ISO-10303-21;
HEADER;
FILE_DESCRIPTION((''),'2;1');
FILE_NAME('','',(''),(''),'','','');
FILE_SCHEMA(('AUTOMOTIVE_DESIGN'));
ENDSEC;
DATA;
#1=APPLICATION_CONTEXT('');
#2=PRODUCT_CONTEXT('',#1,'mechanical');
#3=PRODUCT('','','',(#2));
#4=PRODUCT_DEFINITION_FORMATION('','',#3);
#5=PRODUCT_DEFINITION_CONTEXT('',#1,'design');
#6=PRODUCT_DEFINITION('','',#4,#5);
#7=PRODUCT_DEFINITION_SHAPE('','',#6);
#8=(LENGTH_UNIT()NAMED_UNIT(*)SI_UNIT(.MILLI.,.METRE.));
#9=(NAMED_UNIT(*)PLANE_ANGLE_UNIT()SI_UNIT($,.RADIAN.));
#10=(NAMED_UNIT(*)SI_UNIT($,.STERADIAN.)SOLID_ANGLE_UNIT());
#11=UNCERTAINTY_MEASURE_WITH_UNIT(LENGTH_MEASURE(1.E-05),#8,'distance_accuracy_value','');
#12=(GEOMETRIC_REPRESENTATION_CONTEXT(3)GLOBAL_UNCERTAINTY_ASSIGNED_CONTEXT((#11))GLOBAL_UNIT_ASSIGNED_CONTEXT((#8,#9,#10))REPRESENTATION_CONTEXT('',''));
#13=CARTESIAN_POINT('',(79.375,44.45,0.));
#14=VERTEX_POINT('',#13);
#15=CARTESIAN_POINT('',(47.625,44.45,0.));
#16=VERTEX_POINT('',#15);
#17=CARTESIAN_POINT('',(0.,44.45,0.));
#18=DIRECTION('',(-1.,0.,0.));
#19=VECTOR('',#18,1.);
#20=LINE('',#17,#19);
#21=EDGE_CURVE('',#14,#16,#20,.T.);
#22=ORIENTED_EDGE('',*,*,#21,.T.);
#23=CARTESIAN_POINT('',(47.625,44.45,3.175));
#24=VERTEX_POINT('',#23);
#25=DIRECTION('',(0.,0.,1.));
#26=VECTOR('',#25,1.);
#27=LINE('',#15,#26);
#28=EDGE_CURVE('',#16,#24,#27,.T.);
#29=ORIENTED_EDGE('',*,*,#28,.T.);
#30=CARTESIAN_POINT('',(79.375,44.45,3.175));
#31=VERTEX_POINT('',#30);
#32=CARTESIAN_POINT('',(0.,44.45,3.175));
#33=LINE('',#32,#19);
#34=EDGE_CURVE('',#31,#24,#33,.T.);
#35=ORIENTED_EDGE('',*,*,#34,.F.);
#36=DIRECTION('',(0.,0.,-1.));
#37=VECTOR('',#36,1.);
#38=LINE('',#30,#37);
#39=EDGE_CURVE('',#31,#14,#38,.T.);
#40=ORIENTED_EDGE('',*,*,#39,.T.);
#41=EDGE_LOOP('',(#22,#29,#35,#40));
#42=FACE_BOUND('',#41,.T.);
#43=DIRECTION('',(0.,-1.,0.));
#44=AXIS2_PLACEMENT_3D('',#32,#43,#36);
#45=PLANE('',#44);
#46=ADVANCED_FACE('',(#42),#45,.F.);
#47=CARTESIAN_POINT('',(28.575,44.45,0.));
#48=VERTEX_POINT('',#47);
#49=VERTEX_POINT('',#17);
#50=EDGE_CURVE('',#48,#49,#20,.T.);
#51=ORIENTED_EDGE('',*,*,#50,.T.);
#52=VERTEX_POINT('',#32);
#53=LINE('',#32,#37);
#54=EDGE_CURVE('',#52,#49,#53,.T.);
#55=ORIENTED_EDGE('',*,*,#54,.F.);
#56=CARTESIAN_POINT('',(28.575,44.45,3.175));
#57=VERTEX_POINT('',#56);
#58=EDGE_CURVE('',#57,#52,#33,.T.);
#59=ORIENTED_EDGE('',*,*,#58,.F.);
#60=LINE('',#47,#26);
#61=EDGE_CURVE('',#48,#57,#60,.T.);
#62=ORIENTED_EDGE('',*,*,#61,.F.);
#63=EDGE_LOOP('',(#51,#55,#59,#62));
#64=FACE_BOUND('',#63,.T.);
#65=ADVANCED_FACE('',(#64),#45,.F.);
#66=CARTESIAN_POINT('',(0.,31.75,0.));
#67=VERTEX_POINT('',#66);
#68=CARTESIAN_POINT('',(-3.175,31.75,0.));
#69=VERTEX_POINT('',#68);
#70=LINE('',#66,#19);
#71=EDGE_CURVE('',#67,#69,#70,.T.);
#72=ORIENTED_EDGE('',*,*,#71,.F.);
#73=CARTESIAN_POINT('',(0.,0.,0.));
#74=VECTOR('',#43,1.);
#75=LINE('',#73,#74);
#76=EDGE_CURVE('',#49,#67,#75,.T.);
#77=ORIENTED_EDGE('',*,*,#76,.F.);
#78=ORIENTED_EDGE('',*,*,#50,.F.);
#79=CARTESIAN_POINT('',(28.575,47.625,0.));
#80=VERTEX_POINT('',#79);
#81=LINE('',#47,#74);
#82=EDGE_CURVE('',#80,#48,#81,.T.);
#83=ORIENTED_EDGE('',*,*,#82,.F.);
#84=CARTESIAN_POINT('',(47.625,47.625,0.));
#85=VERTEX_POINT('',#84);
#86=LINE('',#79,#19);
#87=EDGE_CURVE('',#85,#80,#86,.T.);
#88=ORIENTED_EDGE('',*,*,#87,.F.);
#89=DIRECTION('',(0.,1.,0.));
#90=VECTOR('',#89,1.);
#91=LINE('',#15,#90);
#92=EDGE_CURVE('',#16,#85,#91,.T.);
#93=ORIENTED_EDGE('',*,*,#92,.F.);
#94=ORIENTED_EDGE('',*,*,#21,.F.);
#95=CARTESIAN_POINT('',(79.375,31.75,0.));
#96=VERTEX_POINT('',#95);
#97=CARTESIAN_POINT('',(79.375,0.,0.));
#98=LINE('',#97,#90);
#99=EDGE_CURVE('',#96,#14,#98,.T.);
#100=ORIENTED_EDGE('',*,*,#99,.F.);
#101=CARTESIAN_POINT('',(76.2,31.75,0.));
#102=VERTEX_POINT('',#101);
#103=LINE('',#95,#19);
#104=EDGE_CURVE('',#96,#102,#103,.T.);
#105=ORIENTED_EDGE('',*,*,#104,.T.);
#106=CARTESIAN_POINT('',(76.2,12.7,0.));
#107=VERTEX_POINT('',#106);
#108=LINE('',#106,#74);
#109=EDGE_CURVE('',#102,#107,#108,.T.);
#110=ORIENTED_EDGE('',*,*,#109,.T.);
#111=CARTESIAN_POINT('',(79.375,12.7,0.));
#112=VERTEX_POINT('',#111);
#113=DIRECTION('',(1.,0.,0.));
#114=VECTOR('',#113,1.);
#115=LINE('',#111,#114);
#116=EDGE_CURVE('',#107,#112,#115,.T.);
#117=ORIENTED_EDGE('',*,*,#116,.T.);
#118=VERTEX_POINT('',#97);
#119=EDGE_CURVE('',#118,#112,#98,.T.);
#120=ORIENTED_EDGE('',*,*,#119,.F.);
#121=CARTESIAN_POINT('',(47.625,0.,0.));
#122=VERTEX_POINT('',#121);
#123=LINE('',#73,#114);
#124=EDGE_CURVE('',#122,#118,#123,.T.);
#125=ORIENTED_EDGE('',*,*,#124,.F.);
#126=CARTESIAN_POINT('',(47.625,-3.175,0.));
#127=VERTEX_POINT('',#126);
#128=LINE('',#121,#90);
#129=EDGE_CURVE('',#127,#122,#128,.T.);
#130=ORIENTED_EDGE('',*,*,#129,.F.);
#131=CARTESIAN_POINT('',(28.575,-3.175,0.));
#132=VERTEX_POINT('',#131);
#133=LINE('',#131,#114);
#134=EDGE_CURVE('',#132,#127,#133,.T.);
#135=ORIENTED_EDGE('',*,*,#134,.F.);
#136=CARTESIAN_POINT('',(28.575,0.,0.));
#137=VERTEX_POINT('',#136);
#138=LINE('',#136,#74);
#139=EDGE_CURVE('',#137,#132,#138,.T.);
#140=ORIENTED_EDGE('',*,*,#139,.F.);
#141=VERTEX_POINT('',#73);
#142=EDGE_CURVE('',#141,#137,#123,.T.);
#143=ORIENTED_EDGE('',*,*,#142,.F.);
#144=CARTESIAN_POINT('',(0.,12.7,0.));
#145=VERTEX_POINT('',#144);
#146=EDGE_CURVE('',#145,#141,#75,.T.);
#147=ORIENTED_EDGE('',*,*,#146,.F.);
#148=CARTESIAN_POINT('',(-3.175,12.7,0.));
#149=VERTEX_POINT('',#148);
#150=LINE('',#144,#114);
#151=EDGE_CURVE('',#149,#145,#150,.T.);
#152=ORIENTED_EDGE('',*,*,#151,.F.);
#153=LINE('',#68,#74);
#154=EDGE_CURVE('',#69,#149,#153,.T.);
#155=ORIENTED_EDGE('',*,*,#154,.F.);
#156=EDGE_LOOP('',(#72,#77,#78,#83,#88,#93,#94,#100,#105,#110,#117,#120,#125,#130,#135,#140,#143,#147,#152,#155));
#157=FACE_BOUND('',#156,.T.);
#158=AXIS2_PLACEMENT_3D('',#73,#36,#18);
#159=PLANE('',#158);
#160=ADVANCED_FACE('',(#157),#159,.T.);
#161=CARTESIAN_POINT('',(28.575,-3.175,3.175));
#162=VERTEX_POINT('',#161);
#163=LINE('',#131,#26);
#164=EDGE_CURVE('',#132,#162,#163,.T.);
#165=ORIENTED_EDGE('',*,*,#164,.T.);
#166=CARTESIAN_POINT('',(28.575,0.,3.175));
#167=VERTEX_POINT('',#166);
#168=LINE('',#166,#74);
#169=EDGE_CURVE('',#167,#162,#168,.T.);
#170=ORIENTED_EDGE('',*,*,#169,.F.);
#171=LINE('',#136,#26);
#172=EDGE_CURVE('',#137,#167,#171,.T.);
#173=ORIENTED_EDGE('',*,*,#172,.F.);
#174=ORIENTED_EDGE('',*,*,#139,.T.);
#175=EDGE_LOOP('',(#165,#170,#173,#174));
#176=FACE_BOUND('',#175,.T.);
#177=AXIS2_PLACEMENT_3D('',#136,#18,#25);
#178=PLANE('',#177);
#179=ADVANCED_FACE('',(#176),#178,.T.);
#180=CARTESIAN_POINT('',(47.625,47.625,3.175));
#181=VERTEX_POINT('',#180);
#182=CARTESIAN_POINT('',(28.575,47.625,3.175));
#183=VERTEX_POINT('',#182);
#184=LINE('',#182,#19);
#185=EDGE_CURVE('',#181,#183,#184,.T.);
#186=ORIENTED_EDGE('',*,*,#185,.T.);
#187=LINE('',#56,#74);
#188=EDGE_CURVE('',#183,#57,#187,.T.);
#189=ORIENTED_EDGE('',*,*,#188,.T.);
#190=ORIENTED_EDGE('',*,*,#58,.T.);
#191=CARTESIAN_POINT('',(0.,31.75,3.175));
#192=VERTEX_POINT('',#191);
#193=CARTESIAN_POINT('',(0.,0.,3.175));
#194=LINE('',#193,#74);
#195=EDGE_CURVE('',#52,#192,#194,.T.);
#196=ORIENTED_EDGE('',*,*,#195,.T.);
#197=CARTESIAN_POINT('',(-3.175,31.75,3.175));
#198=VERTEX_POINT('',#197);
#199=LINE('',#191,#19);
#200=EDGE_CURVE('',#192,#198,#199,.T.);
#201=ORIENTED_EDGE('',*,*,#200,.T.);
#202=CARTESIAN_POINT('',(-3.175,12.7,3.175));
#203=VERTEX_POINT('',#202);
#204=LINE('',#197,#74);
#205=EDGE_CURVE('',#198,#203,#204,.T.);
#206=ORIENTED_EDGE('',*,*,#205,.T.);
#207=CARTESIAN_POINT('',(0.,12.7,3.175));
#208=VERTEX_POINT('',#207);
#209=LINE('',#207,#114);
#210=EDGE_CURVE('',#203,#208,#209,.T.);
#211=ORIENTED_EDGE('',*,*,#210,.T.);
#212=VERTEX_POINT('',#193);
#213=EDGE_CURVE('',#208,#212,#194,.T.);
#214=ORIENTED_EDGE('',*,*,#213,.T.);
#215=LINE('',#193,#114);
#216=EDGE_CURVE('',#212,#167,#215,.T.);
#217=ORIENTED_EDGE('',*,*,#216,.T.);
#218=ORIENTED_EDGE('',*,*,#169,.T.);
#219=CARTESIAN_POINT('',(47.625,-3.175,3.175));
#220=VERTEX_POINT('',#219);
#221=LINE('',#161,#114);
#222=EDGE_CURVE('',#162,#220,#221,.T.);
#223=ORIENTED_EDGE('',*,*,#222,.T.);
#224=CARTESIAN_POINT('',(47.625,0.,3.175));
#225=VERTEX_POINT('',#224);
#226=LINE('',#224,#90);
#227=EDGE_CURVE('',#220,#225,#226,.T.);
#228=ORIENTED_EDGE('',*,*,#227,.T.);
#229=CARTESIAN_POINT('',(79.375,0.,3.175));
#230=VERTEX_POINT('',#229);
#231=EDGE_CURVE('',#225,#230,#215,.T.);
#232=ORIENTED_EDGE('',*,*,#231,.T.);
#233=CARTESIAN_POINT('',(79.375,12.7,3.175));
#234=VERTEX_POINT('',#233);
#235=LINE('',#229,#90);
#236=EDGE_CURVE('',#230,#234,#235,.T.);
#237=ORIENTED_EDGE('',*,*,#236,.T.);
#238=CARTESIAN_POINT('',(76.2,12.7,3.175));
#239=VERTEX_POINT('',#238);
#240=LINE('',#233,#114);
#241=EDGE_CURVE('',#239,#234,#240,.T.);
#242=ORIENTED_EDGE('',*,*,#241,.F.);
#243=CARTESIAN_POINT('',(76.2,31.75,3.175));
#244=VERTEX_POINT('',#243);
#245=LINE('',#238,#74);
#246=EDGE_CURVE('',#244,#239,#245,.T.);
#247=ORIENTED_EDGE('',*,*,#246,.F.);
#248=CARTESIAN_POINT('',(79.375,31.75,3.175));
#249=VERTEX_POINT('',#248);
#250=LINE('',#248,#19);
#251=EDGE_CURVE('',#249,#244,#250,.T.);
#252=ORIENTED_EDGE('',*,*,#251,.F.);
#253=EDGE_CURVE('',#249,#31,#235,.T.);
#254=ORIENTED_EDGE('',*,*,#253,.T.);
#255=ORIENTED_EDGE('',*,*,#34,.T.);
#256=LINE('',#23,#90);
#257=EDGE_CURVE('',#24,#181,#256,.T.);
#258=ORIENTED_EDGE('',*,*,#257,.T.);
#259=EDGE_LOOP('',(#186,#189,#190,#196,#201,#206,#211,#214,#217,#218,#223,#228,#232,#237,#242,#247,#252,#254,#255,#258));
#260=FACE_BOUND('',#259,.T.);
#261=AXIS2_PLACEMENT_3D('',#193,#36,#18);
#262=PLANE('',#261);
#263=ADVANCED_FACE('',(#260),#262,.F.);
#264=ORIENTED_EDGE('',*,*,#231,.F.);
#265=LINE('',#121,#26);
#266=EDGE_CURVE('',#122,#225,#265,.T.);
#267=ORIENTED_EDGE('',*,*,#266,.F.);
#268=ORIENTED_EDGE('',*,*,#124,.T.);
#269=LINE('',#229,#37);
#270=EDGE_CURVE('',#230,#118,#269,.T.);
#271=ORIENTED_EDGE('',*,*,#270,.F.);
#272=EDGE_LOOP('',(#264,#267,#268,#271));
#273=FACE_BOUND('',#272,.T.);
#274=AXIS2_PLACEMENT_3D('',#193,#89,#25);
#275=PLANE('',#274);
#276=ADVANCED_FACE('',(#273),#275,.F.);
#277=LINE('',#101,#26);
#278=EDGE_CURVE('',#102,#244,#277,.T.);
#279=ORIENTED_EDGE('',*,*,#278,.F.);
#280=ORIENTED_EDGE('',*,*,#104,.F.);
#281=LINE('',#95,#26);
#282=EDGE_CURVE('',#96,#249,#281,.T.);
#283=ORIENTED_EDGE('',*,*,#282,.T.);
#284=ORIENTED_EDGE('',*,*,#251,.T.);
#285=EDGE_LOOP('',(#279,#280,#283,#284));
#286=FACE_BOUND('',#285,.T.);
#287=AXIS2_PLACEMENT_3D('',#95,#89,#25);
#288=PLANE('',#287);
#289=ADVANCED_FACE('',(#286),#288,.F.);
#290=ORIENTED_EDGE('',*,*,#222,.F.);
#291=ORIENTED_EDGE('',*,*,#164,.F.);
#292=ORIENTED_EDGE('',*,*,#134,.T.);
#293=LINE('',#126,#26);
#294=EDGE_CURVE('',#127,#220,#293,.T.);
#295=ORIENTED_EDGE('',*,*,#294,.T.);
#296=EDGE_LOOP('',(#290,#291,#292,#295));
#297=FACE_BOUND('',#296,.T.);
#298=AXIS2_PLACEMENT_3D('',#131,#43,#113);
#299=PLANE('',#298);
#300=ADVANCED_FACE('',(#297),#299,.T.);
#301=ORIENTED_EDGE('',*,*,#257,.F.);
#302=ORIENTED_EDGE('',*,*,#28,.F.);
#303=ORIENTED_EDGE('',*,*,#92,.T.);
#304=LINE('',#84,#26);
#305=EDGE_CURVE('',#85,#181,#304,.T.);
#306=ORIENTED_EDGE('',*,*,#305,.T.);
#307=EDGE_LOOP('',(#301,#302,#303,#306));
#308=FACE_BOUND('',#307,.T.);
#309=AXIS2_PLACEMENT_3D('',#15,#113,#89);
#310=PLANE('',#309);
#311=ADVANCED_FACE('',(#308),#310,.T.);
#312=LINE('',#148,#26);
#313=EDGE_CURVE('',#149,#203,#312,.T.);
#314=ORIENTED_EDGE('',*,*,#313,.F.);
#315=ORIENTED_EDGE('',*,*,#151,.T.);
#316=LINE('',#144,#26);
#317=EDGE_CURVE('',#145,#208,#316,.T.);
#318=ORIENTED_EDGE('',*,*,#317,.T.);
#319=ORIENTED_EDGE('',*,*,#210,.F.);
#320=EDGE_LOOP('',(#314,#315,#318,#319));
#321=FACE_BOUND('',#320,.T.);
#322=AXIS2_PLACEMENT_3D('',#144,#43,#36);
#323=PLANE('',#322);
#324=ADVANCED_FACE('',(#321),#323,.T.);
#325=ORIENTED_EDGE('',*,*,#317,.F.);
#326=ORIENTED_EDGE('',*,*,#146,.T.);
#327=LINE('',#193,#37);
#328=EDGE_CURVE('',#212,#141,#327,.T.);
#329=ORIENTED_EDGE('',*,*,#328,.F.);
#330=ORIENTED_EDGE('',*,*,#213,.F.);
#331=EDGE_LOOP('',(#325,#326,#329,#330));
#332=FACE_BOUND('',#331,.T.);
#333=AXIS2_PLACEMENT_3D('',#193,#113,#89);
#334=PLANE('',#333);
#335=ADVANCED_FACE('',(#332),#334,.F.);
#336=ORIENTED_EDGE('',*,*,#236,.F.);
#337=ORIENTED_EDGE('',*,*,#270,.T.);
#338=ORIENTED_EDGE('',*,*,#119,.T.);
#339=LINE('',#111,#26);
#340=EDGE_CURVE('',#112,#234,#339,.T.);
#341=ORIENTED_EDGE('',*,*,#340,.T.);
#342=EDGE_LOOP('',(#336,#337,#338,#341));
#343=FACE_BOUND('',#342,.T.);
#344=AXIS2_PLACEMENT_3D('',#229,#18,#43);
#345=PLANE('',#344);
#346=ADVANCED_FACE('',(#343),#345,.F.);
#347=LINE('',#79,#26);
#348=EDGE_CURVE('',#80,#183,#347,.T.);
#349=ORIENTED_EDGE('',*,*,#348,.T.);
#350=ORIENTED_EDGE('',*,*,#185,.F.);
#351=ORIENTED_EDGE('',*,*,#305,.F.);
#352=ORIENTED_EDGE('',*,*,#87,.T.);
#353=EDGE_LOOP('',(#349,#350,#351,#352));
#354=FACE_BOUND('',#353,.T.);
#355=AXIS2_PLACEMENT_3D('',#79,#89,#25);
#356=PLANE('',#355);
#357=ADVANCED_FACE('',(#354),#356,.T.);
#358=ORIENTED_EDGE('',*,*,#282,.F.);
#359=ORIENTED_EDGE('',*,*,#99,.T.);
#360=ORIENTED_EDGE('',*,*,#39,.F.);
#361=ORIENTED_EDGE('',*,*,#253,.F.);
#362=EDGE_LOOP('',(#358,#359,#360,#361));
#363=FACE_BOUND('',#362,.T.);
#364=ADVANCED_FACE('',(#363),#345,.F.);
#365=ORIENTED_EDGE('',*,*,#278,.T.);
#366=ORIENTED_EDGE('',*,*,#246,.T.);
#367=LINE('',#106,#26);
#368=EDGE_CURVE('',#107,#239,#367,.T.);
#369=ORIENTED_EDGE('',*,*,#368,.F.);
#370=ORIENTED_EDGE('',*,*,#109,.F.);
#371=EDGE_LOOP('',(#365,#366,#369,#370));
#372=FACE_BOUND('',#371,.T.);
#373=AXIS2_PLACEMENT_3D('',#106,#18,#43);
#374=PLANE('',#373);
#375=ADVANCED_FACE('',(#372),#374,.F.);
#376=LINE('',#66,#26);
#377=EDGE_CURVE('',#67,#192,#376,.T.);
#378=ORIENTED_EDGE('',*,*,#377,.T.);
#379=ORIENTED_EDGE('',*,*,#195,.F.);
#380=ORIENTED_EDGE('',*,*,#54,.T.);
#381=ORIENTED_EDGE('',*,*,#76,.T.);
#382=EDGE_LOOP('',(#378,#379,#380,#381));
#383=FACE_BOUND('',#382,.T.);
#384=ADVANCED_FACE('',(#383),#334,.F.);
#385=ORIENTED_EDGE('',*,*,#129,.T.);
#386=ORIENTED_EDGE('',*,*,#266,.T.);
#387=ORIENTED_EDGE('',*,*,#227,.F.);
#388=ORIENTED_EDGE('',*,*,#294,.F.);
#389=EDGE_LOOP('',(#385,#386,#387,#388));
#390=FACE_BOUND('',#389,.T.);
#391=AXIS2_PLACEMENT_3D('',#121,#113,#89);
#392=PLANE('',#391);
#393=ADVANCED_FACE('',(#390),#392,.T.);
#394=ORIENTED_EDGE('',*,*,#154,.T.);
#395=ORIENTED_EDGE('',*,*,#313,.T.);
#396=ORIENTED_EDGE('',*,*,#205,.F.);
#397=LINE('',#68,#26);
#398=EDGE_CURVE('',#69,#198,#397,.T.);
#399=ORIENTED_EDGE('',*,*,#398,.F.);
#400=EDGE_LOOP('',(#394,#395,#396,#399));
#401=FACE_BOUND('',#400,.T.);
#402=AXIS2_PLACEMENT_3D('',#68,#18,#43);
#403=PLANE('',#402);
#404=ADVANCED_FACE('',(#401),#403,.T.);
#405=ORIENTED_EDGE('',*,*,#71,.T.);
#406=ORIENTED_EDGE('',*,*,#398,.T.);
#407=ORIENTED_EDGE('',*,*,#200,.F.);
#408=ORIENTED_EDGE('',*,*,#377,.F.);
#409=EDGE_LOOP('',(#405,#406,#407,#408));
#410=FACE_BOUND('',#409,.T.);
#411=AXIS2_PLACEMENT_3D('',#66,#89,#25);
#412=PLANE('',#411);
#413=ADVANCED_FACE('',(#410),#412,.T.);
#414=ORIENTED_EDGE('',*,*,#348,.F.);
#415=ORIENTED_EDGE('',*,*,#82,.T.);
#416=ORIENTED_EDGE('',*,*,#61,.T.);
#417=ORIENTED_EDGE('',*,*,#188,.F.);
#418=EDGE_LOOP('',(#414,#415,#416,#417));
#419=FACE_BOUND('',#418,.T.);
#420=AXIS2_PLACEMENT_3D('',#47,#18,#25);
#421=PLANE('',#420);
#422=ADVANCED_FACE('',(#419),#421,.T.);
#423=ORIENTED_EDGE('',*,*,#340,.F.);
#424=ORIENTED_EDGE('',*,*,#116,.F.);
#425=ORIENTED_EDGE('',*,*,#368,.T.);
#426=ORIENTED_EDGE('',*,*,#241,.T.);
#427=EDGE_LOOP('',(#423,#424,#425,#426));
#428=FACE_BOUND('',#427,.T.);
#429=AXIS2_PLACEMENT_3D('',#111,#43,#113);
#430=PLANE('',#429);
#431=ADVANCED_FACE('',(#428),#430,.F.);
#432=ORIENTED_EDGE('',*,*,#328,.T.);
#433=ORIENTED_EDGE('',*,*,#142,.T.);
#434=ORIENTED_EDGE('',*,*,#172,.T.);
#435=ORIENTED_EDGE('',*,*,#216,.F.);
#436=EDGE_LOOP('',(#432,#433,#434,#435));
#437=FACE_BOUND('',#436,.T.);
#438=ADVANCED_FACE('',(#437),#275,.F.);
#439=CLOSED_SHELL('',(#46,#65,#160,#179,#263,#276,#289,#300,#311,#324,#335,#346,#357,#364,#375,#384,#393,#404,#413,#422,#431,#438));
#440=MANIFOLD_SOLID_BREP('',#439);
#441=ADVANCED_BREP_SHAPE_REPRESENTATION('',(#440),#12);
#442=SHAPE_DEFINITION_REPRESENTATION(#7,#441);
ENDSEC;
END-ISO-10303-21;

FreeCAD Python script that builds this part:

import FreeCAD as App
import Part
import Sketcher

V = App.Vector
Q = App.Units.Quantity


def add_polygon(sketch, points):
    """Adds a closed chain of lines whose ends are joined by coincident constraints."""
    first, n = sketch.GeometryCount, len(points)
    for a, b in zip(points, points[1:] + points[:1]):
        sketch.addGeometry(Part.LineSegment(App.Vector(*a, 0), App.Vector(*b, 0)), False)
    for i in range(n):
        sketch.addConstraint(Sketcher.Constraint("Coincident", first + i, 2, first + (i + 1) % n, 1))

doc = App.newDocument("Part")
body = doc.addObject("PartDesign::Body", "Body")

# Sketch on XY plane
sketch1 = body.newObject("Sketcher::SketchObject", "Sketch")
sketch1.AttachmentSupport = (doc.getObject("XY_Plane"), [""])
sketch1.MapMode = "FlatFace"
add_polygon(sketch1, [(0, 44.45), (0, 0), (79.375, 0), (79.375, 44.45)])  # lines 0-3
sketch1.addConstraint([
    Sketcher.Constraint("Vertical", 0),
    Sketcher.Constraint("Horizontal", 1),
    Sketcher.Constraint("Vertical", 2),
    Sketcher.Constraint("Horizontal", 3),
    Sketcher.Constraint("Coincident", 0, 2, -1, 1),
    Sketcher.Constraint("DistanceY", 0, 2, 0, 1, Q("1.75 in")),
    Sketcher.Constraint("DistanceX", 1, 1, 1, 2, Q("3.125 in")),
])
pad1 = body.newObject("PartDesign::Pad", "Pad")
pad1.Profile = sketch1
pad1.Length = Q("0.125 in")

# Sketch on XY plane
sketch2 = body.newObject("Sketcher::SketchObject", "Sketch001")
sketch2.AttachmentSupport = (doc.getObject("XY_Plane"), [""])
sketch2.MapMode = "FlatFace"
sketch2.AttachmentOffset = App.Placement(V(0, 0, 0.125 * 25.4), App.Rotation())
add_polygon(sketch2, [(-3.175, 31.75), (-3.175, 12.7), (0, 12.7), (0, 31.75)])  # lines 0-3
sketch2.addConstraint([
    Sketcher.Constraint("Vertical", 0),
    Sketcher.Constraint("Horizontal", 1),
    Sketcher.Constraint("Vertical", 2),
    Sketcher.Constraint("Horizontal", 3),
    Sketcher.Constraint("PointOnObject", 1, 2, -2),
    Sketcher.Constraint("DistanceY", 0, 2, 0, 1, Q("0.75 in")),
    Sketcher.Constraint("DistanceY", -1, 1, 0, 2, Q("0.5 in")),
    Sketcher.Constraint("DistanceX", 1, 1, 1, 2, Q("0.125 in")),
])
pad2 = body.newObject("PartDesign::Pad", "Pad001")
pad2.Profile = sketch2
pad2.Length = Q("0.125 in")
pad2.Reversed = True

# Sketch on XY plane
sketch3 = body.newObject("Sketcher::SketchObject", "Sketch002")
sketch3.AttachmentSupport = (doc.getObject("XY_Plane"), [""])
sketch3.MapMode = "FlatFace"
sketch3.AttachmentOffset = App.Placement(V(0, 0, 0.125 * 25.4), App.Rotation())
add_polygon(sketch3, [(28.575, 47.625), (28.575, 44.45), (47.625, 44.45), (47.625, 47.625)])  # lines 0-3
add_polygon(sketch3, [(28.575, 0), (28.575, -3.175), (47.625, -3.175), (47.625, 0)])  # lines 4-7
sketch3.addConstraint([
    Sketcher.Constraint("Vertical", 0),
    Sketcher.Constraint("Horizontal", 1),
    Sketcher.Constraint("Vertical", 2),
    Sketcher.Constraint("Horizontal", 3),
    Sketcher.Constraint("Vertical", 4),
    Sketcher.Constraint("Horizontal", 5),
    Sketcher.Constraint("Vertical", 6),
    Sketcher.Constraint("Horizontal", 7),
    Sketcher.Constraint("PointOnObject", 6, 2, -1),
    Sketcher.Constraint("Vertical", 3, 2, 4, 2),
    Sketcher.Constraint("Vertical", 2, 2, 5, 2),
    Sketcher.Constraint("Equal", 2, 4),
    Sketcher.Constraint("DistanceY", 4, 2, 3, 2, Q("2 in")),
    Sketcher.Constraint("DistanceX", 1, 1, 1, 2, Q("0.75 in")),
    Sketcher.Constraint("DistanceY", 0, 2, 0, 1, Q("0.125 in")),
    Sketcher.Constraint("DistanceX", -1, 1, 0, 2, Q("1.125 in")),
])
pad3 = body.newObject("PartDesign::Pad", "Pad002")
pad3.Profile = sketch3
pad3.Length = Q("0.125 in")
pad3.Reversed = True

# Sketch on XY plane
sketch4 = body.newObject("Sketcher::SketchObject", "Sketch003")
sketch4.AttachmentSupport = (doc.getObject("XY_Plane"), [""])
sketch4.MapMode = "FlatFace"
sketch4.AttachmentOffset = App.Placement(V(0, 0, 0.125 * 25.4), App.Rotation())
add_polygon(sketch4, [(76.2, 31.75), (76.2, 12.7), (79.375, 12.7), (79.375, 31.75)])  # lines 0-3
sketch4.addConstraint([
    Sketcher.Constraint("Vertical", 0),
    Sketcher.Constraint("Horizontal", 1),
    Sketcher.Constraint("Vertical", 2),
    Sketcher.Constraint("Horizontal", 3),
    Sketcher.Constraint("DistanceX", -1, 1, 0, 2, Q("3 in")),
    Sketcher.Constraint("DistanceY", 0, 2, 0, 1, Q("0.75 in")),
    Sketcher.Constraint("DistanceY", -1, 1, 0, 2, Q("0.5 in")),
    Sketcher.Constraint("DistanceX", 1, 1, 1, 2, Q("0.125 in")),
])
pocket1 = body.newObject("PartDesign::Pocket", "Pocket")
pocket1.Profile = sketch4
pocket1.Length = Q("0.125 in")

doc.recompute()
